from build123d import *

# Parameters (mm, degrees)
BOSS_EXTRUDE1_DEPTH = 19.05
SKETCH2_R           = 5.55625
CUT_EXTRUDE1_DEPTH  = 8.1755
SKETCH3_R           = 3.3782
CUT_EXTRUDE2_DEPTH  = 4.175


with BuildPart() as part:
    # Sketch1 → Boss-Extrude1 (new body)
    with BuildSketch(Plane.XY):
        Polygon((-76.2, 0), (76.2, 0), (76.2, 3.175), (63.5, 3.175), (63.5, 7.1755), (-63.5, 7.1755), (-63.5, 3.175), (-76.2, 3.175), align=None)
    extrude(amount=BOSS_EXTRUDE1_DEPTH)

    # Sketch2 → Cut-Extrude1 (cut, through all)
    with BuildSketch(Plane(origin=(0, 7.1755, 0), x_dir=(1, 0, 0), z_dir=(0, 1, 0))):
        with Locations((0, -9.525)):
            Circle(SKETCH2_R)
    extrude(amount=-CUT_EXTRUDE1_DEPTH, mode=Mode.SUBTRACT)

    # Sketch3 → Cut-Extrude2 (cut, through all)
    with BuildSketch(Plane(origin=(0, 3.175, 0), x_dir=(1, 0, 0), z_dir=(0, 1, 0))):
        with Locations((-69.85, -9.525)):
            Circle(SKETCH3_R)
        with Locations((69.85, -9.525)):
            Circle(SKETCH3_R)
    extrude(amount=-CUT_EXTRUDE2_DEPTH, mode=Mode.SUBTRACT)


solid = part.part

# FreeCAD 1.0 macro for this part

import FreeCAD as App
import Part
import Sketcher
from FreeCAD import Vector
Q = App.Units.Quantity

doc = App.newDocument("Part")
body = doc.addObject("PartDesign::Body", "Body")

# Sketch on XY plane
sketch1 = doc.addObject("Sketcher::SketchObject", "Sketch")
body.addObject(sketch1)
sketch1.AttachmentSupport = (doc.XY_Plane, [""])
sketch1.MapMode = "FlatFace"
sketch1.addGeometry([
    Part.LineSegment(Vector(-76.2, 0, 0), Vector(76.2, 0, 0)),  # 0
    Part.LineSegment(Vector(76.2, 0, 0), Vector(76.2, 3.2, 0)),  # 1
    Part.LineSegment(Vector(76.2, 3.2, 0), Vector(63.5, 3.2, 0)),  # 2
    Part.LineSegment(Vector(63.5, 3.2, 0), Vector(63.5, 7.2, 0)),  # 3
    Part.LineSegment(Vector(63.5, 7.2, 0), Vector(-63.5, 7.2, 0)),  # 4
    Part.LineSegment(Vector(-63.5, 7.2, 0), Vector(-63.5, 3.2, 0)),  # 5
    Part.LineSegment(Vector(-63.5, 3.2, 0), Vector(-76.2, 3.2, 0)),  # 6
    Part.LineSegment(Vector(-76.2, 3.2, 0), Vector(-76.2, 0, 0)),  # 7
], False)
sketch1.addConstraint([
    Sketcher.Constraint("Coincident", 0, 2, 1, 1),
    Sketcher.Constraint("Coincident", 1, 2, 2, 1),
    Sketcher.Constraint("Coincident", 2, 2, 3, 1),
    Sketcher.Constraint("Coincident", 3, 2, 4, 1),
    Sketcher.Constraint("Coincident", 4, 2, 5, 1),
    Sketcher.Constraint("Coincident", 5, 2, 6, 1),
    Sketcher.Constraint("Coincident", 6, 2, 7, 1),
    Sketcher.Constraint("Coincident", 7, 2, 0, 1),
    Sketcher.Constraint("Horizontal", 0),
    Sketcher.Constraint("Vertical", 1),
    Sketcher.Constraint("Horizontal", 2),
    Sketcher.Constraint("Vertical", 3),
    Sketcher.Constraint("Horizontal", 4),
    Sketcher.Constraint("Vertical", 5),
    Sketcher.Constraint("Horizontal", 6),
    Sketcher.Constraint("Vertical", 7),
    Sketcher.Constraint("Symmetric", 0, 2, 7, 2, -1, 1),
    Sketcher.Constraint("Symmetric", 2, 2, 5, 2, -2),
    Sketcher.Constraint("DistanceX", 0, 1, 0, 2, Q("6 in")),
    Sketcher.Constraint("DistanceX", 4, 2, 4, 1, Q("5 in")),
    Sketcher.Constraint("DistanceY", 1, 1, 1, 2, Q("0.125 in")),
    Sketcher.Constraint("DistanceY", 3, 1, 3, 2, Q("0.1575 in")),
])
pad1 = doc.addObject("PartDesign::Pad", "Pad")
body.addObject(pad1)
pad1.Profile = sketch1
pad1.Length = Q("0.75 in")

# Sketch on XZ plane
sketch2 = doc.addObject("Sketcher::SketchObject", "Sketch001")
body.addObject(sketch2)
sketch2.AttachmentSupport = (doc.XZ_Plane, [""])
sketch2.MapMode = "FlatFace"
sketch2.AttachmentOffset = App.Placement(Vector(0, 0, -0.2825 * 25.4), App.Rotation())
sketch2.addGeometry(Part.Circle(Vector(0, 10, 0), Vector(0, 0, 1), 6), False)
sketch2.addConstraint([
    Sketcher.Constraint("PointOnObject", 0, 3, -2),
    Sketcher.Constraint("Diameter", 0, Q("0.4375 in")),
    Sketcher.Constraint("DistanceY", -1, 1, 0, 3, Q("0.375 in")),
])
pocket1 = doc.addObject("PartDesign::Pocket", "Pocket")
body.addObject(pocket1)
pocket1.Profile = sketch2
pocket1.Type = "ThroughAll"
pocket1.Reversed = True

# Sketch on XZ plane
sketch3 = doc.addObject("Sketcher::SketchObject", "Sketch002")
body.addObject(sketch3)
sketch3.AttachmentSupport = (doc.XZ_Plane, [""])
sketch3.MapMode = "FlatFace"
sketch3.AttachmentOffset = App.Placement(Vector(0, 0, -0.125 * 25.4), App.Rotation())
sketch3.addGeometry([
    Part.Circle(Vector(-69.8, 9.5, 0), Vector(0, 0, 1), 3.4),
    Part.Circle(Vector(69.8, 9.5, 0), Vector(0, 0, 1), 3.4),
], False)
sketch3.addConstraint([
    Sketcher.Constraint("Equal", 0, 1),
    Sketcher.Constraint("Symmetric", 0, 3, 1, 3, -2),
    Sketcher.Constraint("Diameter", 0, Q("0.266 in")),
    Sketcher.Constraint("DistanceX", 0, 3, 1, 3, Q("5.5 in")),
    Sketcher.Constraint("DistanceY", -1, 1, 0, 3, Q("0.375 in")),
])
pocket2 = doc.addObject("PartDesign::Pocket", "Pocket001")
body.addObject(pocket2)
pocket2.Profile = sketch3
pocket2.Type = "ThroughAll"
pocket2.Reversed = True

doc.recompute()
